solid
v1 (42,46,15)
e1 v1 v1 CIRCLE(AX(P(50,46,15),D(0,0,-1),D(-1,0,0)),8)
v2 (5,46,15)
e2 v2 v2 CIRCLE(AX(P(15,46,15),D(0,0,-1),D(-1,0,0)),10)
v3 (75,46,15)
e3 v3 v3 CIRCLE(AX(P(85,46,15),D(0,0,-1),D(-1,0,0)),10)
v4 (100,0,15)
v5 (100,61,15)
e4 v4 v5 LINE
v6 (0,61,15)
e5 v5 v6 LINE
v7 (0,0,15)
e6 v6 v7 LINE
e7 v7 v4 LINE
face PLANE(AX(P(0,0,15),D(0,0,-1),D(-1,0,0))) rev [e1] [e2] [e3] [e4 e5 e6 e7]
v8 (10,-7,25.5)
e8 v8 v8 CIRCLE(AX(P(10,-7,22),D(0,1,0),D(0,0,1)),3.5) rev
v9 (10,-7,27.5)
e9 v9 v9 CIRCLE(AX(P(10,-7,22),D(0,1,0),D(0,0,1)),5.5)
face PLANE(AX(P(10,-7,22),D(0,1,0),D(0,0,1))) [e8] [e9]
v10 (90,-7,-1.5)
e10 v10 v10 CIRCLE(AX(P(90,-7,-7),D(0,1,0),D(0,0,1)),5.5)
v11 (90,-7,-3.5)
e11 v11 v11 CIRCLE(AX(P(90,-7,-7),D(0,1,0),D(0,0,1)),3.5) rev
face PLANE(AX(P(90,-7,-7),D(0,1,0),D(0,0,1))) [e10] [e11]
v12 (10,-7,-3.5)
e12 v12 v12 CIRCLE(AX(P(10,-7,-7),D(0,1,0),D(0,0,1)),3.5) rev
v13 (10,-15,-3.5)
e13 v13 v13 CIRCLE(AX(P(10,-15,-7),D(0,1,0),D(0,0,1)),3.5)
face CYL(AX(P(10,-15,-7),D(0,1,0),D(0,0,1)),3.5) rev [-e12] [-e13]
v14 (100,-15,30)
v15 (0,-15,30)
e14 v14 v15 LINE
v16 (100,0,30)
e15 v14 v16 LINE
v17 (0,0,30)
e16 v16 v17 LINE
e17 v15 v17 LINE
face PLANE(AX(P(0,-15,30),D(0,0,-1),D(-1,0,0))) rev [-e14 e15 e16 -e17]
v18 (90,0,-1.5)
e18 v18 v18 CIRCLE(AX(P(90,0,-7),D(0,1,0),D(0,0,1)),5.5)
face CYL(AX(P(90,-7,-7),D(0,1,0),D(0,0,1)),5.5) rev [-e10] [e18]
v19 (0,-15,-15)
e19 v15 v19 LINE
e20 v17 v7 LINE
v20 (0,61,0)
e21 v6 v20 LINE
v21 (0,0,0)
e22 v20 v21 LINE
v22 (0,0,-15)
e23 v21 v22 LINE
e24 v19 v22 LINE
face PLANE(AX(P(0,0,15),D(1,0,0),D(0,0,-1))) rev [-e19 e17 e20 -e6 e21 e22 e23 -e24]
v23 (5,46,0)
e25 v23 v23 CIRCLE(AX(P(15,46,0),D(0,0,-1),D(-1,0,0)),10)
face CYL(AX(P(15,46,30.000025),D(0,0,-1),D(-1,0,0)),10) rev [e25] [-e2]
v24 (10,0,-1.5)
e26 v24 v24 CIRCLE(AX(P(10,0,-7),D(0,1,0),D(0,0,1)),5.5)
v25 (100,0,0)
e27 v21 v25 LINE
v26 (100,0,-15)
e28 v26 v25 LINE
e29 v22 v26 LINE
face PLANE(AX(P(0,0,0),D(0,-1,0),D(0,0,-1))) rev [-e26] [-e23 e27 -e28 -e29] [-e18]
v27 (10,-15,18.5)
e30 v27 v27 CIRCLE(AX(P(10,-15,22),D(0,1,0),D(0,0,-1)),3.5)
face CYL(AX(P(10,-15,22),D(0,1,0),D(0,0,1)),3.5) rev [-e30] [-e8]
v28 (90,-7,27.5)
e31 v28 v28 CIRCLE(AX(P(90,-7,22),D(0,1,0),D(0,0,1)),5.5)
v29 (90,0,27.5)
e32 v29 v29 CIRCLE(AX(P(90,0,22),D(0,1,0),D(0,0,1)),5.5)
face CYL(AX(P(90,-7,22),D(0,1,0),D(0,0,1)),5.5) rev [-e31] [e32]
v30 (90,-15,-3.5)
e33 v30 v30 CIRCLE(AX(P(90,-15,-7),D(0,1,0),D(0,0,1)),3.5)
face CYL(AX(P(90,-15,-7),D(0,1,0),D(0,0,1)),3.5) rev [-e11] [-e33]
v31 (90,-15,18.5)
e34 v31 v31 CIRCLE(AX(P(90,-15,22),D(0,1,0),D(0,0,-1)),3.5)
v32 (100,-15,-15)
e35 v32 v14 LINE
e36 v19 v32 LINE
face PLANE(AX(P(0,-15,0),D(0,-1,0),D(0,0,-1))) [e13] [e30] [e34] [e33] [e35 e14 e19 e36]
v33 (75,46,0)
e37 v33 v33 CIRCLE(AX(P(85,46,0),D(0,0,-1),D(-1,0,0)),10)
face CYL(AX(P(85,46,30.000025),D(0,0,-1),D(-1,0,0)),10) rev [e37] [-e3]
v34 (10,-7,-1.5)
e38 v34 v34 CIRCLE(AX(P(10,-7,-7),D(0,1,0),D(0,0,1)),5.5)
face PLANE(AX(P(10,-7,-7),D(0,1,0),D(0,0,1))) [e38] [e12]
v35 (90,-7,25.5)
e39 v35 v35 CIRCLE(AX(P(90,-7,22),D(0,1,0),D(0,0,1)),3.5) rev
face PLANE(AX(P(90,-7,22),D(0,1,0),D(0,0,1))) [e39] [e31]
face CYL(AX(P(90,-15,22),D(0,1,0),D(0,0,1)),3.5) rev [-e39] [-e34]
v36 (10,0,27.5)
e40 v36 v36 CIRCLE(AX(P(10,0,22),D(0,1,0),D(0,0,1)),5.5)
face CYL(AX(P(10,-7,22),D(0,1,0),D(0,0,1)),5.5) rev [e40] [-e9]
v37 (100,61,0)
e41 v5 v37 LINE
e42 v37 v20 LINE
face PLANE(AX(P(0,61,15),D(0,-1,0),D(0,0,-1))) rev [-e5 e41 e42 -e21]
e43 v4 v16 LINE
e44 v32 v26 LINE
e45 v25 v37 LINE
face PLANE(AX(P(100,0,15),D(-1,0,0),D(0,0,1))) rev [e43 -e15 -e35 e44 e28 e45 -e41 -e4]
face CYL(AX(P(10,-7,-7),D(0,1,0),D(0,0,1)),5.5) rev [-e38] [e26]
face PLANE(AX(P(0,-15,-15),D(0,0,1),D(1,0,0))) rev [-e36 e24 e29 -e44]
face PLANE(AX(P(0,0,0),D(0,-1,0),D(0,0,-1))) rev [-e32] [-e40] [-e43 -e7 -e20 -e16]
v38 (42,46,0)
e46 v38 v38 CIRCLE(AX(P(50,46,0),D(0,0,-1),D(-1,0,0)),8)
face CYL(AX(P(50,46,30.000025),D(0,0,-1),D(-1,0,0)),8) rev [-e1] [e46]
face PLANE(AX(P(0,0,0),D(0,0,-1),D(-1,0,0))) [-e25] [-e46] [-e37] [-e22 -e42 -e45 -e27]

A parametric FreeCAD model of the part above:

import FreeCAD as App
import Part
import Sketcher
Q = App.Units.Quantity


def add_polygon(sketch, points):
    """Adds a closed chain of lines whose ends are joined by coincident constraints."""
    first, n = sketch.GeometryCount, len(points)
    for a, b in zip(points, points[1:] + points[:1]):
        sketch.addGeometry(Part.LineSegment(App.Vector(*a, 0), App.Vector(*b, 0)), False)
    for i in range(n):
        sketch.addConstraint(Sketcher.Constraint("Coincident", first + i, 2, first + (i + 1) % n, 1))

doc = App.newDocument("Part")
body = doc.addObject("PartDesign::Body", "Body")

# Sketch on XY plane
sketch1 = body.newObject("Sketcher::SketchObject", "Sketch")
sketch1.AttachmentSupport = (doc.getObject("XY_Plane"), [""])
sketch1.MapMode = "FlatFace"
add_polygon(sketch1, [(0, 61), (0, 0), (100, 0), (100, 61)])  # lines 0-3
sketch1.addConstraint(Sketcher.Constraint("Vertical", 0))
sketch1.addConstraint(Sketcher.Constraint("Horizontal", 1))
sketch1.addConstraint(Sketcher.Constraint("Vertical", 2))
sketch1.addConstraint(Sketcher.Constraint("Horizontal", 3))
sketch1.addConstraint(Sketcher.Constraint("Coincident", 0, 2, -1, 1))
sketch1.addConstraint(Sketcher.Constraint("DistanceX", 1, 1, 1, 2, Q("100 mm")))
sketch1.addConstraint(Sketcher.Constraint("DistanceY", 0, 2, 0, 1, Q("61 mm")))
pad1 = body.newObject("PartDesign::Pad", "Pad")
pad1.Profile = sketch1
pad1.Length = 15

# Sketch on XZ plane
sketch2 = body.newObject("Sketcher::SketchObject", "Sketch001")
sketch2.AttachmentSupport = (doc.getObject("XZ_Plane"), [""])
sketch2.MapMode = "FlatFace"
add_polygon(sketch2, [(0, 30), (0, -15), (100, -15), (100, 30)])  # lines 0-3
sketch2.addConstraint(Sketcher.Constraint("Vertical", 0))
sketch2.addConstraint(Sketcher.Constraint("Horizontal", 1))
sketch2.addConstraint(Sketcher.Constraint("Vertical", 2))
sketch2.addConstraint(Sketcher.Constraint("Horizontal", 3))
sketch2.addConstraint(Sketcher.Constraint("PointOnObject", 0, 2, -2))
sketch2.addConstraint(Sketcher.Constraint("DistanceX", 1, 1, 1, 2, Q("100 mm")))
sketch2.addConstraint(Sketcher.Constraint("DistanceY", 0, 2, 0, 1, Q("45 mm")))
sketch2.addConstraint(Sketcher.Constraint("DistanceY", 0, 2, -1, 1, Q("15 mm")))
pad2 = body.newObject("PartDesign::Pad", "Pad001")
pad2.Profile = sketch2
pad2.Length = 15

# Sketch on XZ plane
sketch3 = body.newObject("Sketcher::SketchObject", "Sketch002")
sketch3.AttachmentSupport = (doc.getObject("XZ_Plane"), [""])
sketch3.MapMode = "FlatFace"
sketch3.addGeometry(Part.Circle(App.Vector(10, -7, 0), App.Vector(0, 0, 1), 3.5), False)
sketch3.addGeometry(Part.Circle(App.Vector(90, -7, 0), App.Vector(0, 0, 1), 3.5), False)
sketch3.addGeometry(Part.Circle(App.Vector(90, 22, 0), App.Vector(0, 0, 1), 3.5), False)
sketch3.addGeometry(Part.Circle(App.Vector(10, 22, 0), App.Vector(0, 0, 1), 3.5), False)
sketch3.addConstraint(Sketcher.Constraint("Equal", 0, 1))
sketch3.addConstraint(Sketcher.Constraint("Equal", 1, 2))
sketch3.addConstraint(Sketcher.Constraint("Equal", 2, 3))
sketch3.addConstraint(Sketcher.Constraint("Horizontal", 0, 3, 1, 3))
sketch3.addConstraint(Sketcher.Constraint("Horizontal", 2, 3, 3, 3))
sketch3.addConstraint(Sketcher.Constraint("Vertical", 1, 3, 2, 3))
sketch3.addConstraint(Sketcher.Constraint("Vertical", 0, 3, 3, 3))
sketch3.addConstraint(Sketcher.Constraint("Diameter", 0, Q("7 mm")))
sketch3.addConstraint(Sketcher.Constraint("DistanceX", -1, 1, 0, 3, Q("10 mm")))
sketch3.addConstraint(Sketcher.Constraint("DistanceY", 0, 3, -1, 1, Q("7 mm")))
sketch3.addConstraint(Sketcher.Constraint("DistanceX", -1, 1, 1, 3, Q("90 mm")))
sketch3.addConstraint(Sketcher.Constraint("DistanceY", -1, 1, 2, 3, Q("22 mm")))
pocket1 = body.newObject("PartDesign::Pocket", "Pocket")
pocket1.Profile = sketch3
pocket1.Type = "ThroughAll"
pocket1.Reversed = True

# Sketch on XZ plane
sketch4 = body.newObject("Sketcher::SketchObject", "Sketch003")
sketch4.AttachmentSupport = (doc.getObject("XZ_Plane"), [""])
sketch4.MapMode = "FlatFace"
sketch4.addGeometry(Part.Circle(App.Vector(10, -7, 0), App.Vector(0, 0, 1), 6), False)
sketch4.addGeometry(Part.Circle(App.Vector(90, -7, 0), App.Vector(0, 0, 1), 6), False)
sketch4.addGeometry(Part.Circle(App.Vector(10, 22, 0), App.Vector(0, 0, 1), 6), False)
sketch4.addGeometry(Part.Circle(App.Vector(90, 22, 0), App.Vector(0, 0, 1), 6), False)
sketch4.addConstraint(Sketcher.Constraint("Equal", 0, 1))
sketch4.addConstraint(Sketcher.Constraint("Equal", 1, 2))
sketch4.addConstraint(Sketcher.Constraint("Equal", 2, 3))
sketch4.addConstraint(Sketcher.Constraint("Horizontal", 0, 3, 1, 3))
sketch4.addConstraint(Sketcher.Constraint("Horizontal", 2, 3, 3, 3))
sketch4.addConstraint(Sketcher.Constraint("Vertical", 0, 3, 2, 3))
sketch4.addConstraint(Sketcher.Constraint("Vertical", 1, 3, 3, 3))
sketch4.addConstraint(Sketcher.Constraint("Diameter", 0, Q("11 mm")))
sketch4.addConstraint(Sketcher.Constraint("DistanceX", -1, 1, 0, 3, Q("10 mm")))
sketch4.addConstraint(Sketcher.Constraint("DistanceY", 0, 3, -1, 1, Q("7 mm")))
sketch4.addConstraint(Sketcher.Constraint("DistanceX", -1, 1, 1, 3, Q("90 mm")))
sketch4.addConstraint(Sketcher.Constraint("DistanceY", -1, 1, 2, 3, Q("22 mm")))
pocket2 = body.newObject("PartDesign::Pocket", "Pocket001")
pocket2.Profile = sketch4
pocket2.Length = 7
pocket2.Reversed = True

# Sketch on XY plane
sketch5 = body.newObject("Sketcher::SketchObject", "Sketch004")
sketch5.AttachmentSupport = (doc.getObject("XY_Plane"), [""])
sketch5.MapMode = "FlatFace"
sketch5.addGeometry(Part.Circle(App.Vector(85, 46, 0), App.Vector(0, 0, 1), 10), False)
sketch5.addGeometry(Part.Circle(App.Vector(15, 46, 0), App.Vector(0, 0, 1), 10), False)
sketch5.addGeometry(Part.Circle(App.Vector(50, 46, 0), App.Vector(0, 0, 1), 8), False)
sketch5.addConstraint(Sketcher.Constraint("Equal", 0, 1))
sketch5.addConstraint(Sketcher.Constraint("Horizontal", 0, 3, 1, 3))
sketch5.addConstraint(Sketcher.Constraint("Horizontal", 1, 3, 2, 3))
sketch5.addConstraint(Sketcher.Constraint("Diameter", 0, Q("20 mm")))
sketch5.addConstraint(Sketcher.Constraint("Diameter", 2, Q("16 mm")))
sketch5.addConstraint(Sketcher.Constraint("DistanceX", -1, 1, 0, 3, Q("85 mm")))
sketch5.addConstraint(Sketcher.Constraint("DistanceY", -1, 1, 0, 3, Q("46 mm")))
sketch5.addConstraint(Sketcher.Constraint("DistanceX", -1, 1, 1, 3, Q("15 mm")))
sketch5.addConstraint(Sketcher.Constraint("DistanceX", -1, 1, 2, 3, Q("50 mm")))
pocket3 = body.newObject("PartDesign::Pocket", "Pocket002")
pocket3.Profile = sketch5
pocket3.Type = "ThroughAll"
pocket3.Reversed = True

doc.recompute()
